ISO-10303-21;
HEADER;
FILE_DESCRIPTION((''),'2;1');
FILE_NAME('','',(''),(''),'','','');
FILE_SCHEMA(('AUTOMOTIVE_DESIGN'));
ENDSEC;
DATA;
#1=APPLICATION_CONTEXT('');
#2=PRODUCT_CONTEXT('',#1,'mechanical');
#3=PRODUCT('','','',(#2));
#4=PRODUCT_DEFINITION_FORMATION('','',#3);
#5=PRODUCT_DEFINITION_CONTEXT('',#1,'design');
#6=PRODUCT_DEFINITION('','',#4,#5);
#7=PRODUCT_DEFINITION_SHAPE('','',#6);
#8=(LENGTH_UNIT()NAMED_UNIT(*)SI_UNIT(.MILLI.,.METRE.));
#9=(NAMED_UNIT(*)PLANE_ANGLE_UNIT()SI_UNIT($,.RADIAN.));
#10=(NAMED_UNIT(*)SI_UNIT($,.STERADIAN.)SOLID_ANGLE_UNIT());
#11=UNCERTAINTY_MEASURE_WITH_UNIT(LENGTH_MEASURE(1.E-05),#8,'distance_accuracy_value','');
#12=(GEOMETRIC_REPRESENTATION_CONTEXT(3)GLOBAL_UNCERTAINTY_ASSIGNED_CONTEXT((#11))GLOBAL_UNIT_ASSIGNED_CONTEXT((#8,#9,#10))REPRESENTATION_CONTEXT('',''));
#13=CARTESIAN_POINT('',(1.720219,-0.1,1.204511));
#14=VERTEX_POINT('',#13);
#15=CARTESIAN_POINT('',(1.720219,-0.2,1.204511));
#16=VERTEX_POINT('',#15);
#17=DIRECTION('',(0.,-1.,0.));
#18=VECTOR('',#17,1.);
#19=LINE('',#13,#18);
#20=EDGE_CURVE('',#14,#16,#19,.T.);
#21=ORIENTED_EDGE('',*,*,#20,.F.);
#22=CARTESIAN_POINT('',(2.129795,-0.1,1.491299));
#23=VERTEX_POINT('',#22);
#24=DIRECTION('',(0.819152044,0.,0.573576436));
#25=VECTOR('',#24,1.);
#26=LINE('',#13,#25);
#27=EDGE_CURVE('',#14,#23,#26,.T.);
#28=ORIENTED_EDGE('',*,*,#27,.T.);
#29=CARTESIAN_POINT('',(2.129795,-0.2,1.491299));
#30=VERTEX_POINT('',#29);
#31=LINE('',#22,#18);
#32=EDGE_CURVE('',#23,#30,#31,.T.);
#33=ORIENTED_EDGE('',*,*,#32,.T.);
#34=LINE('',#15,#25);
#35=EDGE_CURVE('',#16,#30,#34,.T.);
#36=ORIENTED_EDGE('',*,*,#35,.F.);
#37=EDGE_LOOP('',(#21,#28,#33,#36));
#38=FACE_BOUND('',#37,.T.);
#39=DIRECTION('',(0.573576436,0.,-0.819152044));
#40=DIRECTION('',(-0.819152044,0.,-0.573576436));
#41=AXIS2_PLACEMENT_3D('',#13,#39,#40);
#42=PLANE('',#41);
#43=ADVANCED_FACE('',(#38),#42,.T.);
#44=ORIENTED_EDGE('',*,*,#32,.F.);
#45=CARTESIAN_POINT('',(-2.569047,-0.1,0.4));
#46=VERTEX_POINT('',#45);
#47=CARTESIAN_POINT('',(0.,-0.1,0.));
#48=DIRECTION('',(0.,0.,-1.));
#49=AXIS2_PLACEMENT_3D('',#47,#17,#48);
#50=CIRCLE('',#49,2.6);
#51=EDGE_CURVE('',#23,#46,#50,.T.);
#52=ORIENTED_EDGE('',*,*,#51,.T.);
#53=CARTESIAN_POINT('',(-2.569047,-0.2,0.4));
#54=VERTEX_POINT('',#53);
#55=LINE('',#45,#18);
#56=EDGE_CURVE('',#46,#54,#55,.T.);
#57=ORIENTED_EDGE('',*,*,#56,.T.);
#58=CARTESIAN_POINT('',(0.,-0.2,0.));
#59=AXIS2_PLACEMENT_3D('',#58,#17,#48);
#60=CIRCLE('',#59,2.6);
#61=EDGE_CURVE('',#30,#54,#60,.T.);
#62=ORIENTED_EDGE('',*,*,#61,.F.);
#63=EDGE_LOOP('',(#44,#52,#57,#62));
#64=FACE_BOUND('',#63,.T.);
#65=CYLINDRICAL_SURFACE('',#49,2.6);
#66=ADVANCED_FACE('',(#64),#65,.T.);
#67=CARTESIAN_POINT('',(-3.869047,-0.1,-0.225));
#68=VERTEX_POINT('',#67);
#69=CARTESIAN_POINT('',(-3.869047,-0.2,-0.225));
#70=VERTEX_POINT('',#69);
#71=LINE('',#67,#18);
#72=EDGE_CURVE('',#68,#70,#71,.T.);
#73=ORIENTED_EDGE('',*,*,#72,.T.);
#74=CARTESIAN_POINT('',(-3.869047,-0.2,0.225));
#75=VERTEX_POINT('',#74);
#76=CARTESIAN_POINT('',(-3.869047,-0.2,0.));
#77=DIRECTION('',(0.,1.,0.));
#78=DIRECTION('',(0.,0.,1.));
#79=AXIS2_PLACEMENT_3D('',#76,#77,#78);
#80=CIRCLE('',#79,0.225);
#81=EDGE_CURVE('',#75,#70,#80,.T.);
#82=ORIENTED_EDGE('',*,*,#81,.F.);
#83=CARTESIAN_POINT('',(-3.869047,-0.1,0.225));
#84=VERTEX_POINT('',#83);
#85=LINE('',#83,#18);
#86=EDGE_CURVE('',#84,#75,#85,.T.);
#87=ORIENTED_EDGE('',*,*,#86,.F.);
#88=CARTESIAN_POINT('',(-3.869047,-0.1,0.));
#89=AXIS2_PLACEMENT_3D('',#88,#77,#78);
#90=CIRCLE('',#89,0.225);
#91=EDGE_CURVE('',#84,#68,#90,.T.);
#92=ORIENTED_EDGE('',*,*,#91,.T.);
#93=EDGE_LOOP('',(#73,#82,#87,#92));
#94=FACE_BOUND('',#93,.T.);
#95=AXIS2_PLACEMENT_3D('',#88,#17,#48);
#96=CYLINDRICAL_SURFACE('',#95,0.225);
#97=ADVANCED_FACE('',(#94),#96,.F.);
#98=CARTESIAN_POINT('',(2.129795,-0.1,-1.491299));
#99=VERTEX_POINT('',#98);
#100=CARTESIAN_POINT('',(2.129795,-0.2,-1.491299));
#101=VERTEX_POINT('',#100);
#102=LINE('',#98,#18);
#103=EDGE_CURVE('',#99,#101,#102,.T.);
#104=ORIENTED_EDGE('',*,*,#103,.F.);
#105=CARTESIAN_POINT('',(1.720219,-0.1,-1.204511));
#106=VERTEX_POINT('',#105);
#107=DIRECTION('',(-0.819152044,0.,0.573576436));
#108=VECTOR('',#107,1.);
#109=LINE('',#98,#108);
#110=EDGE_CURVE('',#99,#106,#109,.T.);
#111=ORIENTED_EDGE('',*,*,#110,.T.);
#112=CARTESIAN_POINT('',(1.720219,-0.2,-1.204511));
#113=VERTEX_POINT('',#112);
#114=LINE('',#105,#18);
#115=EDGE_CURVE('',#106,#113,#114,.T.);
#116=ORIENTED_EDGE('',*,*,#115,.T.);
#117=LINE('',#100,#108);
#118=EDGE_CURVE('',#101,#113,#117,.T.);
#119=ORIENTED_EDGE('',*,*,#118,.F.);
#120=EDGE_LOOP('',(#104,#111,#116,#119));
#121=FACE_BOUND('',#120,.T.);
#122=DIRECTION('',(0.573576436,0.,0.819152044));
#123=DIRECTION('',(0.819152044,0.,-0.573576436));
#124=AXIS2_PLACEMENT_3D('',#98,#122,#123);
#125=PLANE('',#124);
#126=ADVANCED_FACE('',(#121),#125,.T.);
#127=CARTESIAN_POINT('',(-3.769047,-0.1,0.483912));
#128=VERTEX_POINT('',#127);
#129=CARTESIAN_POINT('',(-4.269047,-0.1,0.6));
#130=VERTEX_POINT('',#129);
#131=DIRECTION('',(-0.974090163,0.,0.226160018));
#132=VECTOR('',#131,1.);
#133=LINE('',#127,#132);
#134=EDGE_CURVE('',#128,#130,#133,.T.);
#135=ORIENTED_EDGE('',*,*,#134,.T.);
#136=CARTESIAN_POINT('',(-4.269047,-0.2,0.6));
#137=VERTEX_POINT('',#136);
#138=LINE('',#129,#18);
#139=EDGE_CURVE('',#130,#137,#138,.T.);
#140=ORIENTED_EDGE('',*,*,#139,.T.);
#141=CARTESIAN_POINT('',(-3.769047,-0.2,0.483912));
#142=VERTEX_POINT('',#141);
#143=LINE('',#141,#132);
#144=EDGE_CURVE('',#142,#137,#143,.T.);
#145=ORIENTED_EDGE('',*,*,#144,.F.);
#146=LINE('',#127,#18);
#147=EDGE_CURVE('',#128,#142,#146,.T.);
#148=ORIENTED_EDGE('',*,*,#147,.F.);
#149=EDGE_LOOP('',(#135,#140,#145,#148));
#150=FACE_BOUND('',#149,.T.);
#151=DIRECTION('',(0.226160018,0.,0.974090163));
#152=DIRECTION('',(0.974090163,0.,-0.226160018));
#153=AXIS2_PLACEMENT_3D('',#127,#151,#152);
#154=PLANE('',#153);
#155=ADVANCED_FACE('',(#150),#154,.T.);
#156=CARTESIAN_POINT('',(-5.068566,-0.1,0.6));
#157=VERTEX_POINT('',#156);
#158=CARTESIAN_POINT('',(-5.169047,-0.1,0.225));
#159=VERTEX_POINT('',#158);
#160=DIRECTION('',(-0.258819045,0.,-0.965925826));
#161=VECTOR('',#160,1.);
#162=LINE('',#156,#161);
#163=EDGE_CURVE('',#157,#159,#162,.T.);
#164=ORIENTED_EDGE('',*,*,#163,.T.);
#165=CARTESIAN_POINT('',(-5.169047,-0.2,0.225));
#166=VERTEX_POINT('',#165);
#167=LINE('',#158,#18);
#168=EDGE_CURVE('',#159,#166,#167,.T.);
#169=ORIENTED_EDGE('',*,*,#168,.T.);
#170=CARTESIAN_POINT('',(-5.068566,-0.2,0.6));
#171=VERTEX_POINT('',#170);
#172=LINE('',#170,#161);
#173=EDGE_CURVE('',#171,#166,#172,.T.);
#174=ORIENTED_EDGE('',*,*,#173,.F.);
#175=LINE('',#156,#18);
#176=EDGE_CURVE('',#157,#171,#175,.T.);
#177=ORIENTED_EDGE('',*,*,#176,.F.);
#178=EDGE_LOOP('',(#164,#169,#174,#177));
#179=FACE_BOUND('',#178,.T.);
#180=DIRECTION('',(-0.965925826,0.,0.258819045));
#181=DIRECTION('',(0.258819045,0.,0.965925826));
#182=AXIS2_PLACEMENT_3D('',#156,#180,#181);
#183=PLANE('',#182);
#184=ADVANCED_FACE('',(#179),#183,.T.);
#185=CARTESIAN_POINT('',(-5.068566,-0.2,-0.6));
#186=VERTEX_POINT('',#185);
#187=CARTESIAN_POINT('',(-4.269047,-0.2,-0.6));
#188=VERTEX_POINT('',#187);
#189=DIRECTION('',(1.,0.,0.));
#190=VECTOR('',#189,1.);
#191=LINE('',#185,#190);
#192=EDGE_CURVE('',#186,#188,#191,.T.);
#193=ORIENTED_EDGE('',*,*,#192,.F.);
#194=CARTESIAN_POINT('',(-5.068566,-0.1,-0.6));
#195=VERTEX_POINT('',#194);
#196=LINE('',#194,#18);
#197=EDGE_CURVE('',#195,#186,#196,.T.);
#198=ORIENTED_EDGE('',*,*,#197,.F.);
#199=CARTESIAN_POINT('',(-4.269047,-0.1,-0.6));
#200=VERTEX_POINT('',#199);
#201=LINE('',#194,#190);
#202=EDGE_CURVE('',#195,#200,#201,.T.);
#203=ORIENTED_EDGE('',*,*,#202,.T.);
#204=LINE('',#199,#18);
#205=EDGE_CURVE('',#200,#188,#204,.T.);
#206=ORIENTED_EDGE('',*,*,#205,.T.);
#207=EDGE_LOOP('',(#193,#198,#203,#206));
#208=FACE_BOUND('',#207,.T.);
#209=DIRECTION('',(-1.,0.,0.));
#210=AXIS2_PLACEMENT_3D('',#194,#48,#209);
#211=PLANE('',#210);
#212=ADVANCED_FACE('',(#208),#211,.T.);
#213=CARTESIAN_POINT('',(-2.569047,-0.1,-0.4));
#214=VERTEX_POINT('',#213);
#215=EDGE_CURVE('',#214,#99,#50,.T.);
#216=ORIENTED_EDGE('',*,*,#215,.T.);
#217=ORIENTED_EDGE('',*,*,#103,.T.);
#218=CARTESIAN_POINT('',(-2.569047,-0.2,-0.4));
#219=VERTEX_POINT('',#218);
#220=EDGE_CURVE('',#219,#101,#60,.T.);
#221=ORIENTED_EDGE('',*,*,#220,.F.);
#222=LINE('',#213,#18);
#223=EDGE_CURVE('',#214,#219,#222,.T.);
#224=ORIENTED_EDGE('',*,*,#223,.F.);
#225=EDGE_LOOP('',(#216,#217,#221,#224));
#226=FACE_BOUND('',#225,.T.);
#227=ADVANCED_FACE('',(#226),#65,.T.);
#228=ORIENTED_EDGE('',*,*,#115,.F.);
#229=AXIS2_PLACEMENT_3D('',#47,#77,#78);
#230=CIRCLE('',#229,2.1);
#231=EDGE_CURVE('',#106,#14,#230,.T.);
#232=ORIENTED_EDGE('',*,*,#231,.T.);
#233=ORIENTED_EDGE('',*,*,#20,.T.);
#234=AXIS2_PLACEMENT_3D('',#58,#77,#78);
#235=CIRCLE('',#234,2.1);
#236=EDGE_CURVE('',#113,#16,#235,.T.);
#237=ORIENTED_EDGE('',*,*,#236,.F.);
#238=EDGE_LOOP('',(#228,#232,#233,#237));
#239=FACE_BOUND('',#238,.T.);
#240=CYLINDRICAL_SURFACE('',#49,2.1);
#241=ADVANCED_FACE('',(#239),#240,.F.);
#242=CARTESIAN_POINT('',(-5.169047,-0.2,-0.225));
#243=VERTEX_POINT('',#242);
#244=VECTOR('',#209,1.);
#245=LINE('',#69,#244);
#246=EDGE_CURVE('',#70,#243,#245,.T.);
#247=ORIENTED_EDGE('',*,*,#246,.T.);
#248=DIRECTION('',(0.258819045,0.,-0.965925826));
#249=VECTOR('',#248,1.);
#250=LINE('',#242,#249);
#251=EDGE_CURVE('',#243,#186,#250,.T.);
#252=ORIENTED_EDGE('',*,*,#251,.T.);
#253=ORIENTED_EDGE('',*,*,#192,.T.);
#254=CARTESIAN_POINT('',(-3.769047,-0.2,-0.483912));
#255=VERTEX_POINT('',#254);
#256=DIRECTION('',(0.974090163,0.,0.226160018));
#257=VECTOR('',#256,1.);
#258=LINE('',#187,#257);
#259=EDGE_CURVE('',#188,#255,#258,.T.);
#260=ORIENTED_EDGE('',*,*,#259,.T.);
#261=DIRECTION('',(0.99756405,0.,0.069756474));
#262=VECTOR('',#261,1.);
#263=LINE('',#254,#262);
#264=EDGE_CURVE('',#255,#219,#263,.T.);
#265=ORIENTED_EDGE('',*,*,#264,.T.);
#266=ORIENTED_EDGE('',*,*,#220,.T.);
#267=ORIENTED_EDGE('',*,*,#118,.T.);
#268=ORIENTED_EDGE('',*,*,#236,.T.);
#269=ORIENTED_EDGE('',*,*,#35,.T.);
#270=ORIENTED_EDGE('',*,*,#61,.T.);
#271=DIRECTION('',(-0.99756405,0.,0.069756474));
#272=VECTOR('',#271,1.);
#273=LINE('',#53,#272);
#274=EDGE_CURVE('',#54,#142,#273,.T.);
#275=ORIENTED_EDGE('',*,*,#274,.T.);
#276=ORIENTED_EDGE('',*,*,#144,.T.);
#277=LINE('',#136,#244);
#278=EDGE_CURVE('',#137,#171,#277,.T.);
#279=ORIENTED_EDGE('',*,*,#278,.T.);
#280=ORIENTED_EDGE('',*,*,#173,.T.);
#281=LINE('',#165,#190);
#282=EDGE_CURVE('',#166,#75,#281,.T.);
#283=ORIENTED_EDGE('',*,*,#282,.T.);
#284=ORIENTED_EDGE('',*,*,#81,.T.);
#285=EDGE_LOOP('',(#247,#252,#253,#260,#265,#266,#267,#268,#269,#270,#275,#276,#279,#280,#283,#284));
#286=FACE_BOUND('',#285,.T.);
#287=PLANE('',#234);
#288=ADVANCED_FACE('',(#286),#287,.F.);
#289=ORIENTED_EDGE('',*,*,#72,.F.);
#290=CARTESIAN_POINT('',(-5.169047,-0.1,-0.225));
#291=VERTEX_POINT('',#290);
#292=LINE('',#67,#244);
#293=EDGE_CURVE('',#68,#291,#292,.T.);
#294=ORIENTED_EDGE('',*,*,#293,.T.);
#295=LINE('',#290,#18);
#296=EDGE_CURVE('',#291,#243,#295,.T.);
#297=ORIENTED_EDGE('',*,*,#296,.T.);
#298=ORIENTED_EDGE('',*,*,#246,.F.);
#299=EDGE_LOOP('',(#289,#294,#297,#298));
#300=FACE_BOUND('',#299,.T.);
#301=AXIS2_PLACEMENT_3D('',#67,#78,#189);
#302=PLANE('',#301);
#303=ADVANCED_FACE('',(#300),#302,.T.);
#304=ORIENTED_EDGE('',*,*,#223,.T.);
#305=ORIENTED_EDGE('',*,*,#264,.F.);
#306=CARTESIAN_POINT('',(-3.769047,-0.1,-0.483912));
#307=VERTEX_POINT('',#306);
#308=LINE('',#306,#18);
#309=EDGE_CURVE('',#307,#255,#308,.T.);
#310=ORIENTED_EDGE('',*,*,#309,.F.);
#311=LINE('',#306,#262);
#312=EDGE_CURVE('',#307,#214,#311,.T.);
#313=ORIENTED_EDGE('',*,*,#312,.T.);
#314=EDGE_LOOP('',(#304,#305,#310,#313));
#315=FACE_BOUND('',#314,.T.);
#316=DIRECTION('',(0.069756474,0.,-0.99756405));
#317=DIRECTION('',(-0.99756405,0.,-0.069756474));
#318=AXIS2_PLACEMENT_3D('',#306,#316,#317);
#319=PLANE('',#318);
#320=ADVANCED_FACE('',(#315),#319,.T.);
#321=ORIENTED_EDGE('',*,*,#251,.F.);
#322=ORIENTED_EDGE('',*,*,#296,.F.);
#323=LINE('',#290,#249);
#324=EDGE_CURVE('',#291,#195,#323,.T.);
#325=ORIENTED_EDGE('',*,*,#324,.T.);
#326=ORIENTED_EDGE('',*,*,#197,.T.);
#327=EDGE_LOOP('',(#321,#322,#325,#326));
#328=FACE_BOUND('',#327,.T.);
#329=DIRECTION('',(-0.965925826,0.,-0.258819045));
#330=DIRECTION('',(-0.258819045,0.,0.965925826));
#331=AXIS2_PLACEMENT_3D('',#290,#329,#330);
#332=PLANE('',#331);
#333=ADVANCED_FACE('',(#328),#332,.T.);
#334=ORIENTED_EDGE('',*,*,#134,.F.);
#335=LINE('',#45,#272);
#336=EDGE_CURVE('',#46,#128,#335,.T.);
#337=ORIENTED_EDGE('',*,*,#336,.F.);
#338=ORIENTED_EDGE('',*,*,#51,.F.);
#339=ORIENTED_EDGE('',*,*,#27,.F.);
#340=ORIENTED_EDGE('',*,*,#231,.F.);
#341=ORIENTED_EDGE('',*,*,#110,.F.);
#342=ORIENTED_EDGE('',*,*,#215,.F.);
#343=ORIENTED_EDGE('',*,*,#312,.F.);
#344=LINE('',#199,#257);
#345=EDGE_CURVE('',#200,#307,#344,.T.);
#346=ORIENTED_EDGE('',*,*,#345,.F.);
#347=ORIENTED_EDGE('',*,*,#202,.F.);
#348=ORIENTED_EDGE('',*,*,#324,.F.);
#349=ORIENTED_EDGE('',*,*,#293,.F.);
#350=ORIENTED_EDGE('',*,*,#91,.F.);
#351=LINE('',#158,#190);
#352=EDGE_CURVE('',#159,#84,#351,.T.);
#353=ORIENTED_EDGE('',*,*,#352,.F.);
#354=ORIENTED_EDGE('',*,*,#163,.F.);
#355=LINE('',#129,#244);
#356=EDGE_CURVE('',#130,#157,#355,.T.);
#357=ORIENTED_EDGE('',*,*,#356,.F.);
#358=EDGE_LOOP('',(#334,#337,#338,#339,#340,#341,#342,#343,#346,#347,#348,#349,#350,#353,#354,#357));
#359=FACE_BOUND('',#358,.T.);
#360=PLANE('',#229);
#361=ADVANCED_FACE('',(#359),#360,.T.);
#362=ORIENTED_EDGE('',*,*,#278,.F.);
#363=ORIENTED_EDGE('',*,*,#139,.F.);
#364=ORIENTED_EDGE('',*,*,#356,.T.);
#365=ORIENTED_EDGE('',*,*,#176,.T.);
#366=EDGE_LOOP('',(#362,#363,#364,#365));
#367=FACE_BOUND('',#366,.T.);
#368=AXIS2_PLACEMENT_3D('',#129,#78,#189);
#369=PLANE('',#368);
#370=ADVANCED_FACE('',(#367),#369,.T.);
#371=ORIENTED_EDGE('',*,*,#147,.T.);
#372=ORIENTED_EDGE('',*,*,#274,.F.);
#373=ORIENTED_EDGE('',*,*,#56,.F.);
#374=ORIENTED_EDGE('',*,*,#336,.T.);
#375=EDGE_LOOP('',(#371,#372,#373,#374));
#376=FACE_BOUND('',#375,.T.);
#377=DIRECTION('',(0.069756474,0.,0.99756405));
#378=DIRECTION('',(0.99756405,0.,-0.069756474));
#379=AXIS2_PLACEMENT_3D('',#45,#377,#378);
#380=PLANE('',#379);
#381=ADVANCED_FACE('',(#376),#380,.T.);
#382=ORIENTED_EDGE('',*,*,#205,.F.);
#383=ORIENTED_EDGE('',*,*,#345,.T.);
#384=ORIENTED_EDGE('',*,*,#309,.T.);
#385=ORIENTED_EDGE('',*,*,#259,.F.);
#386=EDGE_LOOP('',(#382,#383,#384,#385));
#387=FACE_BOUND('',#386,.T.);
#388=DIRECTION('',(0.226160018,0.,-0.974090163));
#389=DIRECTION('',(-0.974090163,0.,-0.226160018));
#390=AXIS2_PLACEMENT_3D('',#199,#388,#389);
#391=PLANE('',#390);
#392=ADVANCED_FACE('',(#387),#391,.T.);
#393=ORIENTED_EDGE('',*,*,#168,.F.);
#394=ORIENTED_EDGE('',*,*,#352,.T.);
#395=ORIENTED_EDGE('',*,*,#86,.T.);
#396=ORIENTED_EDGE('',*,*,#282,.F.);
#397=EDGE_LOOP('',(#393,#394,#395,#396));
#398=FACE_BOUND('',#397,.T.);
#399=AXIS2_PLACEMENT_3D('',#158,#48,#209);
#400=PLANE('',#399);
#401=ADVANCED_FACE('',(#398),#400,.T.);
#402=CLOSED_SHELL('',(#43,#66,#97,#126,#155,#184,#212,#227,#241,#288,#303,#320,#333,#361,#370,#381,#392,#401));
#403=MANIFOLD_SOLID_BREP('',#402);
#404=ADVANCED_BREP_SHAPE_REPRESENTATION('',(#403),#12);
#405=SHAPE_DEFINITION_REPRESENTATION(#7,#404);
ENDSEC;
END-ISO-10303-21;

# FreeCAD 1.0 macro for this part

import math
import FreeCAD as App
import Part
import Sketcher

V = App.Vector
Q = App.Units.Quantity

doc = App.newDocument("Part")
body = doc.addObject("PartDesign::Body", "Body")

# Sketch on XZ plane
sketch1 = body.newObject("Sketcher::SketchObject", "Sketch")
sketch1.AttachmentSupport = (doc.getObject("XZ_Plane"), [""])
sketch1.MapMode = "FlatFace"
sketch1.AttachmentOffset = App.Placement(V(0, 0, 0.2), App.Rotation())
sketch1.addGeometry(Part.LineSegment(V(1.72, 1.2, 0), V(2.13, 1.49, 0)), False)
sketch1.addGeometry(Part.ArcOfCircle(Part.Circle(V(0, 0, 0), V(0, 0, 1), 2.6), math.radians(35), math.radians(171)), False)
sketch1.addGeometry(Part.LineSegment(V(-2.57, 0.4, 0), V(-3.77, 0.48, 0)), False)
sketch1.addGeometry(Part.LineSegment(V(-3.77, 0.48, 0), V(-4.27, 0.6, 0)), False)
sketch1.addGeometry(Part.LineSegment(V(-4.27, 0.6, 0), V(-5.07, 0.6, 0)), False)
sketch1.addGeometry(Part.LineSegment(V(-5.07, 0.6, 0), V(-5.17, 0.23, 0)), False)
sketch1.addGeometry(Part.LineSegment(V(-5.17, 0.23, 0), V(-3.87, 0.23, 0)), False)
sketch1.addGeometry(Part.ArcOfCircle(Part.Circle(V(-3.87, 0, 0), V(0, 0, 1), 0.23), math.radians(-90), math.radians(90)), False)
sketch1.addGeometry(Part.LineSegment(V(-3.87, -0.23, 0), V(-5.17, -0.23, 0)), False)
sketch1.addGeometry(Part.LineSegment(V(-5.17, -0.23, 0), V(-5.07, -0.6, 0)), False)
sketch1.addGeometry(Part.LineSegment(V(-5.07, -0.6, 0), V(-4.27, -0.6, 0)), False)
sketch1.addGeometry(Part.LineSegment(V(-4.27, -0.6, 0), V(-3.77, -0.48, 0)), False)
sketch1.addGeometry(Part.LineSegment(V(-3.77, -0.48, 0), V(-2.57, -0.4, 0)), False)
sketch1.addGeometry(Part.ArcOfCircle(Part.Circle(V(0, 0, 0), V(0, 0, 1), 2.6), math.radians(-171), math.radians(-35)), False)
sketch1.addGeometry(Part.LineSegment(V(2.13, -1.49, 0), V(1.72, -1.2, 0)), False)
sketch1.addGeometry(Part.ArcOfCircle(Part.Circle(V(0, 0, 0), V(0, 0, 1), 2.1), math.radians(35), math.radians(325)), False)
sketch1.addConstraint(Sketcher.Constraint("Coincident", 0, 2, 1, 1))
sketch1.addConstraint(Sketcher.Constraint("Coincident", 1, 2, 2, 1))
sketch1.addConstraint(Sketcher.Constraint("Coincident", 2, 2, 3, 1))
sketch1.addConstraint(Sketcher.Constraint("Coincident", 3, 2, 4, 1))
sketch1.addConstraint(Sketcher.Constraint("Coincident", 4, 2, 5, 1))
sketch1.addConstraint(Sketcher.Constraint("Coincident", 5, 2, 6, 1))
sketch1.addConstraint(Sketcher.Constraint("Tangent", 6, 2, 7, 2))
sketch1.addConstraint(Sketcher.Constraint("Tangent", 7, 1, 8, 1))
sketch1.addConstraint(Sketcher.Constraint("Coincident", 8, 2, 9, 1))
sketch1.addConstraint(Sketcher.Constraint("Coincident", 9, 2, 10, 1))
sketch1.addConstraint(Sketcher.Constraint("Coincident", 10, 2, 11, 1))
sketch1.addConstraint(Sketcher.Constraint("Coincident", 11, 2, 12, 1))
sketch1.addConstraint(Sketcher.Constraint("Coincident", 12, 2, 13, 1))
sketch1.addConstraint(Sketcher.Constraint("Coincident", 13, 2, 14, 1))
sketch1.addConstraint(Sketcher.Constraint("Coincident", 14, 2, 15, 2))
sketch1.addConstraint(Sketcher.Constraint("Coincident", 15, 1, 0, 1))
sketch1.addConstraint(Sketcher.Constraint("Horizontal", 4))
sketch1.addConstraint(Sketcher.Constraint("Horizontal", 6))
sketch1.addConstraint(Sketcher.Constraint("Horizontal", 8))
sketch1.addConstraint(Sketcher.Constraint("Horizontal", 10))
sketch1.addConstraint(Sketcher.Constraint("Coincident", 1, 3, -1, 1))
sketch1.addConstraint(Sketcher.Constraint("Coincident", 13, 3, -1, 1))
sketch1.addConstraint(Sketcher.Constraint("Coincident", 15, 3, -1, 1))
sketch1.addConstraint(Sketcher.Constraint("Equal", 1, 13))
sketch1.addConstraint(Sketcher.Constraint("Symmetric", 5, 2, 8, 2, -1))
sketch1.addConstraint(Sketcher.Constraint("Symmetric", 4, 2, 9, 2, -1))
sketch1.addConstraint(Sketcher.Constraint("Symmetric", 2, 2, 11, 2, -1))
sketch1.addConstraint(Sketcher.Constraint("Vertical", 3, 2, 10, 2))
sketch1.addConstraint(Sketcher.Constraint("Vertical", 1, 2, 12, 2))
sketch1.addConstraint(Sketcher.Constraint("Vertical", 0, 2, 13, 2))
sketch1.addConstraint(Sketcher.Constraint("Vertical", 14, 2, 15, 1))
sketch1.addConstraint(Sketcher.Constraint("Radius", 1, 2.6))
sketch1.addConstraint(Sketcher.Constraint("Radius", 15, 2.1))
sketch1.addConstraint(Sketcher.Constraint("Angle", 0, Q("35 deg")))
sketch1.addConstraint(Sketcher.Constraint("Angle", 2, Q("176 deg")))
sketch1.addConstraint(Sketcher.Constraint("Angle", 5, Q("-105 deg")))
sketch1.addConstraint(Sketcher.Constraint("DistanceX", 6, 1, 6, 2, 1.3))
sketch1.addConstraint(Sketcher.Constraint("Radius", 7, 0.225))
sketch1.addConstraint(Sketcher.Constraint("DistanceY", -1, 1, 1, 2, 0.4))
sketch1.addConstraint(Sketcher.Constraint("DistanceY", -1, 1, 3, 2, 0.6))
sketch1.addConstraint(Sketcher.Constraint("DistanceX", 7, 3, 1, 2, 1.3))
sketch1.addConstraint(Sketcher.Constraint("DistanceX", 7, 3, 2, 2, 0.1))
sketch1.addConstraint(Sketcher.Constraint("DistanceX", 3, 2, 2, 2, 0.5))
sketch1.addConstraint(Sketcher.Constraint("DistanceY", -1, 1, 0, 2, 1.491299))
pad1 = body.newObject("PartDesign::Pad", "Pad")
pad1.Profile = sketch1
pad1.Length = 0.1
pad1.Reversed = True

doc.recompute()
